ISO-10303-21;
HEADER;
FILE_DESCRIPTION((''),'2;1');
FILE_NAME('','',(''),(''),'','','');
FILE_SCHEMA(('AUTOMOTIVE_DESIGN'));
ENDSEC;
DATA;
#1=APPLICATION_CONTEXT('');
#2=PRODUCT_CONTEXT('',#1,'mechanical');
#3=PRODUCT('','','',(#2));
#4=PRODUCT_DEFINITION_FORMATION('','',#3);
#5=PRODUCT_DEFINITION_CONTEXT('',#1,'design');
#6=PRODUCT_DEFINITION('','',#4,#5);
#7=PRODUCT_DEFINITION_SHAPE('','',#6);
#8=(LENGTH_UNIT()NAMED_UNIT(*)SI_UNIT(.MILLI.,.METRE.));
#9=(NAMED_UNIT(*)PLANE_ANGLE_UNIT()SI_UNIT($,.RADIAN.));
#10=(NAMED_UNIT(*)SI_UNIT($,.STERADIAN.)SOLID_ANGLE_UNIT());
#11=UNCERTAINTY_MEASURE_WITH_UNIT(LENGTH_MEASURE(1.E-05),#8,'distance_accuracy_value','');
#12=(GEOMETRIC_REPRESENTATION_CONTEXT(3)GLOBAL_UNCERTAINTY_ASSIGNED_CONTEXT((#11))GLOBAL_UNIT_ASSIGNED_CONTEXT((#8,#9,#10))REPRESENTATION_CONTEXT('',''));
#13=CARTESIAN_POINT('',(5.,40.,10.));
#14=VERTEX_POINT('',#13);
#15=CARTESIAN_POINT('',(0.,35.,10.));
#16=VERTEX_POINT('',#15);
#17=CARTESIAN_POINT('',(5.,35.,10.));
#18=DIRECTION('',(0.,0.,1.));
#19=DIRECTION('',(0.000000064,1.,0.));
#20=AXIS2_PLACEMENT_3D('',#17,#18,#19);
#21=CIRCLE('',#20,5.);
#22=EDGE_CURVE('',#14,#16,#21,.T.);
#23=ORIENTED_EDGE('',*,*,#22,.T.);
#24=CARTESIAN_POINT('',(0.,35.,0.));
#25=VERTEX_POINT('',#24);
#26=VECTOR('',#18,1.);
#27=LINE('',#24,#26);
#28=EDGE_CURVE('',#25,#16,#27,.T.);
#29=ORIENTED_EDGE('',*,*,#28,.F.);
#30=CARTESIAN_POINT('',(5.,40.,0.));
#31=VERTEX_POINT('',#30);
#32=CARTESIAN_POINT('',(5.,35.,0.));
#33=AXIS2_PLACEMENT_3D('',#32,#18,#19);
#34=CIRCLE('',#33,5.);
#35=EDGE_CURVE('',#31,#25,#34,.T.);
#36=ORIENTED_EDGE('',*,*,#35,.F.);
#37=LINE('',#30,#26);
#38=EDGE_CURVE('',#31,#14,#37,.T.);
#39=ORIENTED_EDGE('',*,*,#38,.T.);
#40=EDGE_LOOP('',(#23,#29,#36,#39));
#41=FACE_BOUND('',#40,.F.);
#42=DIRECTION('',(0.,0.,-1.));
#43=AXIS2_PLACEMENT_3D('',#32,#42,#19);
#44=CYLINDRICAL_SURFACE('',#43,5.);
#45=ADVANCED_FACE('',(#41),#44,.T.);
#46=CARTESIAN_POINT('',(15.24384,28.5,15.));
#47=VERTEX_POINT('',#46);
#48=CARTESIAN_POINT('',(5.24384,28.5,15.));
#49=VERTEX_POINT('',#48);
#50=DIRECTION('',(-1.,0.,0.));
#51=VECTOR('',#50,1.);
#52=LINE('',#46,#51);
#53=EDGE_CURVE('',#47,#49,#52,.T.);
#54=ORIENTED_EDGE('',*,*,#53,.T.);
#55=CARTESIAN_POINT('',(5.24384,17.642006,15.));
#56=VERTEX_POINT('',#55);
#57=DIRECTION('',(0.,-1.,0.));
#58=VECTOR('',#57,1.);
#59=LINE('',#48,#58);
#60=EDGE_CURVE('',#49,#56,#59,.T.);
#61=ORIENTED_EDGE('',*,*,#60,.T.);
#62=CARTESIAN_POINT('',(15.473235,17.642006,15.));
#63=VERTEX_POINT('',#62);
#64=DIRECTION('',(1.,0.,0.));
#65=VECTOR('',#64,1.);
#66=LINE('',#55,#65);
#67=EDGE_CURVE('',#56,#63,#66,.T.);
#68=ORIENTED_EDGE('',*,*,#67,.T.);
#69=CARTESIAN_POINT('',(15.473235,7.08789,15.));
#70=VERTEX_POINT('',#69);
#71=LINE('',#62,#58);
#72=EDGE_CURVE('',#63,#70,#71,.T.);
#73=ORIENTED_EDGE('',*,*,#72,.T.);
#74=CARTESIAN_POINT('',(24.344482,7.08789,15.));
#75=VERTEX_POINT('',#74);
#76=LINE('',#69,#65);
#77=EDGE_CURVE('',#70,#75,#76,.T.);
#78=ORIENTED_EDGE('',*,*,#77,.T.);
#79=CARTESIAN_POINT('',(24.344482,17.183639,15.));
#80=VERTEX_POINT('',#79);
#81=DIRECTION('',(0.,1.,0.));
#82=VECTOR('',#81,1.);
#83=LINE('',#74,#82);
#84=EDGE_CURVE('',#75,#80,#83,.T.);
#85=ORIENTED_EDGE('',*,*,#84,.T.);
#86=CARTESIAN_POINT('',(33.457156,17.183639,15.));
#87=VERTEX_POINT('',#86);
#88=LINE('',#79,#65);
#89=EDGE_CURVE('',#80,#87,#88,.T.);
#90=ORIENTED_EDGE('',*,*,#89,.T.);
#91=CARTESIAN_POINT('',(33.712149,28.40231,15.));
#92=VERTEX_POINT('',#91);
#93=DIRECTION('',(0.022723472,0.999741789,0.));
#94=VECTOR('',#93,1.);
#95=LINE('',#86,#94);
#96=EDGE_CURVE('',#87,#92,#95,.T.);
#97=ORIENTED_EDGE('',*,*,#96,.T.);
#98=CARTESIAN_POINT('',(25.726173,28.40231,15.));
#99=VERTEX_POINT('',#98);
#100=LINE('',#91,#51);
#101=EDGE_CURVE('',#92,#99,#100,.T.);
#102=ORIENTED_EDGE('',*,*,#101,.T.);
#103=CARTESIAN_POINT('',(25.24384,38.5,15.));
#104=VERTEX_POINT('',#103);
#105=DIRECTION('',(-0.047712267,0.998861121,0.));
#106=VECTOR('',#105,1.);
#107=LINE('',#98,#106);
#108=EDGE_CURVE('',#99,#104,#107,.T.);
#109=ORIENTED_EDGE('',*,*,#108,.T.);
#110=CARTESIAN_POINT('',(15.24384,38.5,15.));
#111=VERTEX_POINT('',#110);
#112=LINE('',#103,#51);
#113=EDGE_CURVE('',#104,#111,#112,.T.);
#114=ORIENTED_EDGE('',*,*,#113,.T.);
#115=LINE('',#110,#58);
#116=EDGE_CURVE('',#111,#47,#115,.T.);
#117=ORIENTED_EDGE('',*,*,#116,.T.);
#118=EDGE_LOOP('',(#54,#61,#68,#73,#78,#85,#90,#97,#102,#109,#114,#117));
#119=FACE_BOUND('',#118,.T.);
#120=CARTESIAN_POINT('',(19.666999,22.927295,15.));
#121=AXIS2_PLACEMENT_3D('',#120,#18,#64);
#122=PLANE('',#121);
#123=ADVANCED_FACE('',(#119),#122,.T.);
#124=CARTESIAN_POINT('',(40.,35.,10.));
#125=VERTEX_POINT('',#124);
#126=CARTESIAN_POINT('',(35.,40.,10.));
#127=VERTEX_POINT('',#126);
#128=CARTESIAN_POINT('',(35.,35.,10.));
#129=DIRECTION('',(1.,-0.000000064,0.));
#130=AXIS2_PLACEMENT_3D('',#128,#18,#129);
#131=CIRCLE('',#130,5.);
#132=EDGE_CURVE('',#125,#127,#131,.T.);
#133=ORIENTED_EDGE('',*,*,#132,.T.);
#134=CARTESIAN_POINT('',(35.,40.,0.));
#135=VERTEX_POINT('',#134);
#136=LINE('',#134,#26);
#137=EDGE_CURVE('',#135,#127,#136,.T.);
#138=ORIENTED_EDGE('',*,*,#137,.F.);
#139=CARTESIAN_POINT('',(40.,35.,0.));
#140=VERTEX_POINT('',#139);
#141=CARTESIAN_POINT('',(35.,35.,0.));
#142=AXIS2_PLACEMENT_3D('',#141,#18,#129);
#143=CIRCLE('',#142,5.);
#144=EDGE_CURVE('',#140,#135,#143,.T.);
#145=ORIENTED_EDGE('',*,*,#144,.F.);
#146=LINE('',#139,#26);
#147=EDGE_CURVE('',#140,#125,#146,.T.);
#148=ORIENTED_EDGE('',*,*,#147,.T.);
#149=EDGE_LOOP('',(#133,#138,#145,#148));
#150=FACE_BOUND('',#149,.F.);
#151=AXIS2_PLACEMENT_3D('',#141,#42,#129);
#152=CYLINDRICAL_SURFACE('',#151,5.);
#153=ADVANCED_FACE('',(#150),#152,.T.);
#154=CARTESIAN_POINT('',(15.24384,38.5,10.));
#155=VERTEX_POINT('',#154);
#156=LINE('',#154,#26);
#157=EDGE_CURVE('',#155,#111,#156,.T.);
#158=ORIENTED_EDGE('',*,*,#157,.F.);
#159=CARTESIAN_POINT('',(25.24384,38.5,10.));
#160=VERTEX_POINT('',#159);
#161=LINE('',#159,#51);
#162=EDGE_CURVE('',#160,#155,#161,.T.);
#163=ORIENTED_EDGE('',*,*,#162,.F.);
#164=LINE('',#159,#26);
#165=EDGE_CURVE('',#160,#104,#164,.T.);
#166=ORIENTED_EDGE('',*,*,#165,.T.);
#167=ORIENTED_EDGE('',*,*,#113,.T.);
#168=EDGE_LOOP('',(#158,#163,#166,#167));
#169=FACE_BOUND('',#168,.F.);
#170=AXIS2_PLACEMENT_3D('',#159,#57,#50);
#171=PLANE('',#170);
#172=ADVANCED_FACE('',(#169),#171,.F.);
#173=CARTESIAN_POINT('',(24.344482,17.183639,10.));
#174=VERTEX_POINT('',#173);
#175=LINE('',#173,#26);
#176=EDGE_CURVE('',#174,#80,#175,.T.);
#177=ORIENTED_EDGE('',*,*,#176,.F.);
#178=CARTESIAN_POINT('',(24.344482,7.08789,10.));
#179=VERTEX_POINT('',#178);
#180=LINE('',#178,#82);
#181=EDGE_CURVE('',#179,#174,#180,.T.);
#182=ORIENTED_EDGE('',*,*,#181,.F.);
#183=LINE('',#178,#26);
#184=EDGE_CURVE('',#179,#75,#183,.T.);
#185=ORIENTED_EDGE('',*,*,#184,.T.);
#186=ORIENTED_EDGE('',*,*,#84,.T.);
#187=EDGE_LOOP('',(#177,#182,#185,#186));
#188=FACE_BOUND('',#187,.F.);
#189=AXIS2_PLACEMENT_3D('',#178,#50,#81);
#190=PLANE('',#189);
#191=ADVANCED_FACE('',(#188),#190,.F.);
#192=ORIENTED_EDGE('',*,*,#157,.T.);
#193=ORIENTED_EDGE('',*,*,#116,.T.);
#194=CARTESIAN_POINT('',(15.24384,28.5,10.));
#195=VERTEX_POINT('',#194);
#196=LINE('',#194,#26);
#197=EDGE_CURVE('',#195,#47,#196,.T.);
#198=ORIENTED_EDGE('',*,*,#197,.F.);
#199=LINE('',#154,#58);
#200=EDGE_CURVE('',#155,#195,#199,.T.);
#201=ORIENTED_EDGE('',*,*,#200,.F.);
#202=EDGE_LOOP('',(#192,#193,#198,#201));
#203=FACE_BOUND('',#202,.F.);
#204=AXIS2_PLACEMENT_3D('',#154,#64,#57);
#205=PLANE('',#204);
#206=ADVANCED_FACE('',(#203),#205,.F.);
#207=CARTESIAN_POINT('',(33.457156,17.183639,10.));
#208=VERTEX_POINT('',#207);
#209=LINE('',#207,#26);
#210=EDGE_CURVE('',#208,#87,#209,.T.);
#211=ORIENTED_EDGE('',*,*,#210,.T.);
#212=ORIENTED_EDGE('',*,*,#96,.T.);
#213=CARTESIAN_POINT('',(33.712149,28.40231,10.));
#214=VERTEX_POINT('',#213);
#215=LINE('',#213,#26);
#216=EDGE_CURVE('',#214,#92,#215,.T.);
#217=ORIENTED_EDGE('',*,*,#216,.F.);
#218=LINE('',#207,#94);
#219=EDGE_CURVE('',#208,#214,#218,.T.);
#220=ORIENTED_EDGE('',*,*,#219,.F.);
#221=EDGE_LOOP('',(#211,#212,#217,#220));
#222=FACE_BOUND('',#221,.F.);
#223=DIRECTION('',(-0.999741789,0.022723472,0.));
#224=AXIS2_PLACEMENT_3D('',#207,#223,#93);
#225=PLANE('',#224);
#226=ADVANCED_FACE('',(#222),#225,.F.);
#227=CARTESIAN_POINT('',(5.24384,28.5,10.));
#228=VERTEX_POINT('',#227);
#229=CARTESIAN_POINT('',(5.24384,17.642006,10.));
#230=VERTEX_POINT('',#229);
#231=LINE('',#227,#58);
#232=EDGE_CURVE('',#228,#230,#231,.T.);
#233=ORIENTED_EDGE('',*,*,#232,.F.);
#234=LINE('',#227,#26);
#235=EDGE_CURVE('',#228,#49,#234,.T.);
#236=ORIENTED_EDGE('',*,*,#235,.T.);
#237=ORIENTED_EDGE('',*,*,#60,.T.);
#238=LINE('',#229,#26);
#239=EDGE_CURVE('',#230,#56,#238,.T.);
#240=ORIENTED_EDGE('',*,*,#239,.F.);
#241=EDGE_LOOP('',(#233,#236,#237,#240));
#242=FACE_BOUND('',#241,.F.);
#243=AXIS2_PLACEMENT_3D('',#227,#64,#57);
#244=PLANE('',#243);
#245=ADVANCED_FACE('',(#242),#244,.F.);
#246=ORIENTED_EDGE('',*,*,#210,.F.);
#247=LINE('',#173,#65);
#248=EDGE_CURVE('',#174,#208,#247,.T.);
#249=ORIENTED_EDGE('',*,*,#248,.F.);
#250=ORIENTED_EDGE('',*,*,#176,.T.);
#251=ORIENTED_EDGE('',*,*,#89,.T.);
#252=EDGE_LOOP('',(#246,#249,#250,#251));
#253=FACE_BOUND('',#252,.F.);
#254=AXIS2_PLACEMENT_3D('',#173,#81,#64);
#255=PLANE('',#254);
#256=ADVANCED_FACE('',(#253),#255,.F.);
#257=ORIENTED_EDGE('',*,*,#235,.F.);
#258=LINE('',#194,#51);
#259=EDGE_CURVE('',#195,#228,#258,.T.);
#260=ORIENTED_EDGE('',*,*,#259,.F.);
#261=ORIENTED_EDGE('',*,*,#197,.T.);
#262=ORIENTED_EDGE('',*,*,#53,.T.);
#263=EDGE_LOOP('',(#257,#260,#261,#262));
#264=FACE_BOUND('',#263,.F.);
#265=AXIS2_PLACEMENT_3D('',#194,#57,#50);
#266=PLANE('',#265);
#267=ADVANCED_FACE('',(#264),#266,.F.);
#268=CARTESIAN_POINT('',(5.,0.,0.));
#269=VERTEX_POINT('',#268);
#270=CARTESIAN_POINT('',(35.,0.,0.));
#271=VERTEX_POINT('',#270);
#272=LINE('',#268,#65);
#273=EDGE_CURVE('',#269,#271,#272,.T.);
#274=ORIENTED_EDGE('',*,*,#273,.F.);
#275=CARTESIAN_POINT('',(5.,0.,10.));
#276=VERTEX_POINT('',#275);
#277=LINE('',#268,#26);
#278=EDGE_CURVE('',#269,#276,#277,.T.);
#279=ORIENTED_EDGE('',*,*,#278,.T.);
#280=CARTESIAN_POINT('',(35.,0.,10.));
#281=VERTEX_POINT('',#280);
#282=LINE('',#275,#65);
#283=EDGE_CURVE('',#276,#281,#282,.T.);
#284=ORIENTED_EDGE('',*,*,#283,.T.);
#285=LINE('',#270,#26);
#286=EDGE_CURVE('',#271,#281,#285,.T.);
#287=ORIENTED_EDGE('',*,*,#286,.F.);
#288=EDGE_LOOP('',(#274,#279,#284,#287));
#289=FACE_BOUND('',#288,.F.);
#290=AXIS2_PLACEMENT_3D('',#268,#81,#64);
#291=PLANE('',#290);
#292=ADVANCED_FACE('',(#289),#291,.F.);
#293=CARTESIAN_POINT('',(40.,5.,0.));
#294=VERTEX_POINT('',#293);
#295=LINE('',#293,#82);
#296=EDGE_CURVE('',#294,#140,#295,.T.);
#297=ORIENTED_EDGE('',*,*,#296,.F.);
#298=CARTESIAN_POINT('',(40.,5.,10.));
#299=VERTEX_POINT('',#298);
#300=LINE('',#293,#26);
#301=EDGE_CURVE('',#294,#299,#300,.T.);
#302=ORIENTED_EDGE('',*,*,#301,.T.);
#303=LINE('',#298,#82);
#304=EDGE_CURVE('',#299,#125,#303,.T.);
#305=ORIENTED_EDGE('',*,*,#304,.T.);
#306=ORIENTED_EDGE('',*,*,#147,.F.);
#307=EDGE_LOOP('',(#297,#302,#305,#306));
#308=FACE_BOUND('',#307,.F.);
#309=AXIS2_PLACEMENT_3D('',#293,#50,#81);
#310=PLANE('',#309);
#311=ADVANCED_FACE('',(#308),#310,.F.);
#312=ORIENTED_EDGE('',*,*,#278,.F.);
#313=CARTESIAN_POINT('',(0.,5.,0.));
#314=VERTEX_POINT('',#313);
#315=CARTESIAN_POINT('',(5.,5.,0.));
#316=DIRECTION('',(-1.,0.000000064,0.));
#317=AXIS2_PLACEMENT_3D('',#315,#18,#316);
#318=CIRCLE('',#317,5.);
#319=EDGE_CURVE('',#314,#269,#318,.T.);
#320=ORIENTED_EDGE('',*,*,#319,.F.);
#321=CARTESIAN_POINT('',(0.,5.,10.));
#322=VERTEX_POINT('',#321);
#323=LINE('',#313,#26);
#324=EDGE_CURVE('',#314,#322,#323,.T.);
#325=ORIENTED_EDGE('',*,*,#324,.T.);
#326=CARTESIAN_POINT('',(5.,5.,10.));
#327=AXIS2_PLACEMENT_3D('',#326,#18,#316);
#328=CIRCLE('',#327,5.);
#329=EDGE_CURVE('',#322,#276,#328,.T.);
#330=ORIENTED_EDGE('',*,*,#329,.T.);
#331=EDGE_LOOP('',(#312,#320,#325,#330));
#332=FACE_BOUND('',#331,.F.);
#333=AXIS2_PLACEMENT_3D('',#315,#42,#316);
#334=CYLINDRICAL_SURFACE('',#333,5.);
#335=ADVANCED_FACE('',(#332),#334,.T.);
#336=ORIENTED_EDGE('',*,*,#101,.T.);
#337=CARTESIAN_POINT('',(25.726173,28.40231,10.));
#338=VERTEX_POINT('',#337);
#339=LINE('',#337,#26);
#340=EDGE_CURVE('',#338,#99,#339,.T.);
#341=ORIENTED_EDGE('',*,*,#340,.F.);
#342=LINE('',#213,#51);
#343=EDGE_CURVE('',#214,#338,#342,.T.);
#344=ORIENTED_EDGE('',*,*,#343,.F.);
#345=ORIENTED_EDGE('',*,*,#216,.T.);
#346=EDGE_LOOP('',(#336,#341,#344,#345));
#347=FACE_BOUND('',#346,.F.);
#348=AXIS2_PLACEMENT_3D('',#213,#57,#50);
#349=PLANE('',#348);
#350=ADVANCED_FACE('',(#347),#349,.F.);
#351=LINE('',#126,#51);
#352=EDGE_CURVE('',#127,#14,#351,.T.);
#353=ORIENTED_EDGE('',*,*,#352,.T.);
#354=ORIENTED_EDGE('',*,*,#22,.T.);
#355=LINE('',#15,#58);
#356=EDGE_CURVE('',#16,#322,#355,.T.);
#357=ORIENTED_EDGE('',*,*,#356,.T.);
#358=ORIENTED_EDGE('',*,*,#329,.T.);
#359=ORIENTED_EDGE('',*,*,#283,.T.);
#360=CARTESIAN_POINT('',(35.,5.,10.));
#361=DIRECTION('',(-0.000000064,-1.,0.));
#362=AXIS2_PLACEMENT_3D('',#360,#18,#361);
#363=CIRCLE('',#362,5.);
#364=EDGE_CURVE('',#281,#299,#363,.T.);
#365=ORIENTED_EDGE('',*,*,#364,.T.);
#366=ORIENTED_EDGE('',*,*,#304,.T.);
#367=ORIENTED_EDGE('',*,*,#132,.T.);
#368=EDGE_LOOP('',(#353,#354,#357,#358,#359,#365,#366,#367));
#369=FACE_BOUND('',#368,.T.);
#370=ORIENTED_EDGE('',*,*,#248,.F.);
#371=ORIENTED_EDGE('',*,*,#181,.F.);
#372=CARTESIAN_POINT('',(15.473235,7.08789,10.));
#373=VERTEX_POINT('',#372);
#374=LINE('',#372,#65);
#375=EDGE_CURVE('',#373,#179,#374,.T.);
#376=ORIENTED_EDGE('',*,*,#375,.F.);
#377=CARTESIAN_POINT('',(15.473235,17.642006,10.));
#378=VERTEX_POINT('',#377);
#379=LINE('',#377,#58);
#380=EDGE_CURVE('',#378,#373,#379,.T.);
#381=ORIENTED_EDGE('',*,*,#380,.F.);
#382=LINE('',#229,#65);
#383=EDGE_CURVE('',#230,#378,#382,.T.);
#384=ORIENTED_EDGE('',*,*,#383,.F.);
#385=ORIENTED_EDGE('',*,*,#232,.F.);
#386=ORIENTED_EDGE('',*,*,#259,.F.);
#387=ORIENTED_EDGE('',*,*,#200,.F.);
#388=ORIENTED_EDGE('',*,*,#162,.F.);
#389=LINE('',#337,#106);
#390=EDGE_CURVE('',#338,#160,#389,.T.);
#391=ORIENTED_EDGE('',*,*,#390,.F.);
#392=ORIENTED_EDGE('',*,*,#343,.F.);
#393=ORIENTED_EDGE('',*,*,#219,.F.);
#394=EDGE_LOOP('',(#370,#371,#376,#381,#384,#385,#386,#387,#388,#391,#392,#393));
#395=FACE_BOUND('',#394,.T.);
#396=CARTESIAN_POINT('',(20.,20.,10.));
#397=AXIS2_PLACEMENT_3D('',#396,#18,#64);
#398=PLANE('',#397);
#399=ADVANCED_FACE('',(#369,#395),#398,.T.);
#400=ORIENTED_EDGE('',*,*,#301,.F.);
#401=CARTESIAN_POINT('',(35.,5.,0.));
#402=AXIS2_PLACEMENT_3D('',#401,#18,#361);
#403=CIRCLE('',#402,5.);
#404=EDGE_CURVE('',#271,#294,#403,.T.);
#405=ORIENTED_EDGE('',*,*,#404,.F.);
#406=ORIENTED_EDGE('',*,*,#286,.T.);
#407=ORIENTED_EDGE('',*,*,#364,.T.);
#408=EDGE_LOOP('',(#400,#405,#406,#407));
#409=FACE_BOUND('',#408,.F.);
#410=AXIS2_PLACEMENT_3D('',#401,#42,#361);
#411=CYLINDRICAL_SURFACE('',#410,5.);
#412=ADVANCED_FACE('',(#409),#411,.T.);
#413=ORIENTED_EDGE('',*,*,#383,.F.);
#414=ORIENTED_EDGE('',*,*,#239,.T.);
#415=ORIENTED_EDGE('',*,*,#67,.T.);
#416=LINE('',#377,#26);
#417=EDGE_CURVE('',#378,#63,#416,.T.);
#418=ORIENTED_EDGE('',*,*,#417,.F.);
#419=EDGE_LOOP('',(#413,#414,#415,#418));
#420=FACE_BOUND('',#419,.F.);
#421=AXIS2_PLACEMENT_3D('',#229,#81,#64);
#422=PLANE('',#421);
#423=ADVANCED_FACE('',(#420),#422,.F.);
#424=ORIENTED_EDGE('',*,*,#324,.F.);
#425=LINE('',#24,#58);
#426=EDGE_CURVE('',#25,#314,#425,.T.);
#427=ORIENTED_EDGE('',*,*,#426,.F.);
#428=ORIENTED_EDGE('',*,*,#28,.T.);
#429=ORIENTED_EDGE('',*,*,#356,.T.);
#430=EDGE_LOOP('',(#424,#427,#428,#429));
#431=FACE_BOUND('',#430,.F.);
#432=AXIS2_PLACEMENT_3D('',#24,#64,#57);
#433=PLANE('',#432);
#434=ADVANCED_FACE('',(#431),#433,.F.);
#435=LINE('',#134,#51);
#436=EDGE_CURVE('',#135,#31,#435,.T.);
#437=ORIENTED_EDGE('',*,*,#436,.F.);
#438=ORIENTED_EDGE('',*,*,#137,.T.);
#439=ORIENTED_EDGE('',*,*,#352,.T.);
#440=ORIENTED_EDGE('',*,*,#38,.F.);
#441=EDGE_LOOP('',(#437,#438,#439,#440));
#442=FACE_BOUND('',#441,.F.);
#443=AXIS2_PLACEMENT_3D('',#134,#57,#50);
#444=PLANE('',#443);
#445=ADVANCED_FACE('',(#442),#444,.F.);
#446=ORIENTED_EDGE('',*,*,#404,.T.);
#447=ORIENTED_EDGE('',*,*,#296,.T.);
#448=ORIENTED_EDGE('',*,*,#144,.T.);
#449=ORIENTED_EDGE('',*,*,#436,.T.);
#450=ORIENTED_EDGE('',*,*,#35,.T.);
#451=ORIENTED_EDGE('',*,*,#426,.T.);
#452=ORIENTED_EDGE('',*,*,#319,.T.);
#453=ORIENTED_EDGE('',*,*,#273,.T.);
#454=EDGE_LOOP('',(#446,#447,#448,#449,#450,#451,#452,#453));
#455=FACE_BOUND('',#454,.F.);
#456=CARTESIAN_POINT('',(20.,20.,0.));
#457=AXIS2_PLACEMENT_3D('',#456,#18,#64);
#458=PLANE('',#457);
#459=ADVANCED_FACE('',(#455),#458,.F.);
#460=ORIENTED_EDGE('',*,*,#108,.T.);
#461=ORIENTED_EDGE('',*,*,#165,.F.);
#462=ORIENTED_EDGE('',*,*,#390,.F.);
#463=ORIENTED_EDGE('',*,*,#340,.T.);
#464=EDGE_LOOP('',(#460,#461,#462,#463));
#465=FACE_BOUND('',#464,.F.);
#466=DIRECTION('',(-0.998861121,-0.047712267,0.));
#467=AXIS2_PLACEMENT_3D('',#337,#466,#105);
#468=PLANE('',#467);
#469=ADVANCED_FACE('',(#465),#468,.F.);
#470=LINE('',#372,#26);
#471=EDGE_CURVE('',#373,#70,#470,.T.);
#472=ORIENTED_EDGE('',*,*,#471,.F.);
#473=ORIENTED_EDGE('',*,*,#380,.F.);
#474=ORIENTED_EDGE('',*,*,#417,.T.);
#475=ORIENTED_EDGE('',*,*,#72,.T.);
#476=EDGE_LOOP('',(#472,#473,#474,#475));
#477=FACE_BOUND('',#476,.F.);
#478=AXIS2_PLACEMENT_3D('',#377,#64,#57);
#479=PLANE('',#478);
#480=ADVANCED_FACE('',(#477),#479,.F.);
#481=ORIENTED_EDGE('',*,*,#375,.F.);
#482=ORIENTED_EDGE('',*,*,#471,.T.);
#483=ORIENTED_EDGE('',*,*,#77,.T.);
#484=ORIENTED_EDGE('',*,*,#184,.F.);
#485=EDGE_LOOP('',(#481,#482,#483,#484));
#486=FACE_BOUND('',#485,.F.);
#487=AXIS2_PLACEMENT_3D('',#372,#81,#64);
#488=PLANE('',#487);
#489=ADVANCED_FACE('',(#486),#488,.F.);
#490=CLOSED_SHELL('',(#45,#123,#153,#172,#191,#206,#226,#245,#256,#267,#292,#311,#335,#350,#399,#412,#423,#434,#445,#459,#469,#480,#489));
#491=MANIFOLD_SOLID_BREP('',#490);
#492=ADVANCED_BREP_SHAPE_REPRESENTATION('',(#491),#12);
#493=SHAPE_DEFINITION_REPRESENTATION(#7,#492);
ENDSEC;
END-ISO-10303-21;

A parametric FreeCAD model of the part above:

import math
import FreeCAD as App
import Part
import Sketcher

V = App.Vector


def add_polygon(sketch, points):
    """Adds a closed chain of lines whose ends are joined by coincident constraints."""
    first, n = sketch.GeometryCount, len(points)
    for a, b in zip(points, points[1:] + points[:1]):
        sketch.addGeometry(Part.LineSegment(App.Vector(*a, 0), App.Vector(*b, 0)), False)
    for i in range(n):
        sketch.addConstraint(Sketcher.Constraint("Coincident", first + i, 2, first + (i + 1) % n, 1))

doc = App.newDocument("Part")
body = doc.addObject("PartDesign::Body", "Body")

# Sketch on XY plane
sketch1 = body.newObject("Sketcher::SketchObject", "Sketch")
sketch1.AttachmentSupport = (doc.getObject("XY_Plane"), [""])
sketch1.MapMode = "FlatFace"
sketch1.addGeometry([
    Part.ArcOfCircle(Part.Circle(V(5, 5, 0), V(0, 0, 1), 5), math.radians(179.999996), math.radians(270.000004)),  # 0
    Part.LineSegment(V(5, 0, 0), V(35, 0, 0)),  # 1
    Part.ArcOfCircle(Part.Circle(V(35, 5, 0), V(0, 0, 1), 5), math.radians(-90.000004), math.radians(0.000004)),  # 2
    Part.LineSegment(V(40, 5, 0), V(40, 35, 0)),  # 3
    Part.ArcOfCircle(Part.Circle(V(35, 35, 0), V(0, 0, 1), 5), math.radians(-0.000004), math.radians(90.000004)),  # 4
    Part.LineSegment(V(35, 40, 0), V(5, 40, 0)),  # 5
    Part.ArcOfCircle(Part.Circle(V(5, 35, 0), V(0, 0, 1), 5), math.radians(89.999996), math.radians(180.000004)),  # 6
    Part.LineSegment(V(0, 35, 0), V(0, 5, 0)),  # 7
], False)
sketch1.addConstraint([
    Sketcher.Constraint("Tangent", 0, 2, 1, 1),
    Sketcher.Constraint("Tangent", 1, 2, 2, 1),
    Sketcher.Constraint("Tangent", 2, 2, 3, 1),
    Sketcher.Constraint("Tangent", 3, 2, 4, 1),
    Sketcher.Constraint("Tangent", 4, 2, 5, 1),
    Sketcher.Constraint("Tangent", 5, 2, 6, 1),
    Sketcher.Constraint("Tangent", 6, 2, 7, 1),
    Sketcher.Constraint("Tangent", 7, 2, 0, 1),
    Sketcher.Constraint("Horizontal", 1),
    Sketcher.Constraint("Vertical", 3),
    Sketcher.Constraint("Horizontal", 5),
    Sketcher.Constraint("Vertical", 7),
    Sketcher.Constraint("Equal", 0, 2),
    Sketcher.Constraint("Equal", 2, 4),
    Sketcher.Constraint("Equal", 4, 6),
    Sketcher.Constraint("PointOnObject", 0, 2, -1),
    Sketcher.Constraint("PointOnObject", 6, 2, -2),
    Sketcher.Constraint("Equal", 5, 3),
    Sketcher.Constraint("Radius", 0, 5.0),
    Sketcher.Constraint("DistanceX", 1, 1, 1, 2, 30.0),
])
pad1 = body.newObject("PartDesign::Pad", "Pad")
pad1.Profile = sketch1
pad1.Length = 10

# Sketch on XY plane
sketch2 = body.newObject("Sketcher::SketchObject", "Sketch001")
sketch2.AttachmentSupport = (doc.getObject("XY_Plane"), [""])
sketch2.MapMode = "FlatFace"
sketch2.AttachmentOffset = App.Placement(V(0, 0, 10), App.Rotation())
add_polygon(sketch2, [(25.726173, 28.40231), (25.24384, 38.5), (15.24384, 38.5), (15.24384, 28.5), (5.24384, 28.5), (5.24384, 17.642006), (15.473235, 17.642006), (15.473235, 7.08789), (24.344482, 7.08789), (24.344482, 17.183639), (33.457156, 17.183639), (33.712149, 28.40231)])  # lines 0-11
sketch2.addConstraint([
    Sketcher.Constraint("Horizontal", 1),
    Sketcher.Constraint("Vertical", 2),
    Sketcher.Constraint("Horizontal", 3),
    Sketcher.Constraint("Vertical", 4),
    Sketcher.Constraint("Horizontal", 5),
    Sketcher.Constraint("Vertical", 6),
    Sketcher.Constraint("Horizontal", 7),
    Sketcher.Constraint("Vertical", 8),
    Sketcher.Constraint("Horizontal", 9),
    Sketcher.Constraint("Horizontal", 11),
    Sketcher.Constraint("Equal", 1, 3),
    Sketcher.Constraint("Equal", 3, 2),
    Sketcher.Constraint("DistanceX", 1, 2, 1, 1, 10.0),
    Sketcher.Constraint("DistanceY", -1, 1, 0, 2, 38.5),
    Sketcher.Constraint("DistanceY", 8, 1, 8, 2, 10.095749),
    Sketcher.Constraint("Distance", 10, 11.221569),
    Sketcher.Constraint("DistanceX", 5, 1, 5, 2, 10.229395),
    Sketcher.Constraint("DistanceX", 7, 1, 7, 2, 8.871247),
    Sketcher.Constraint("DistanceX", 9, 1, 9, 2, 9.112674),
    Sketcher.Constraint("DistanceX", 11, 2, 11, 1, 7.985976),
    Sketcher.Constraint("DistanceY", 4, 2, 4, 1, 10.857994),
    Sketcher.Constraint("DistanceY", 6, 2, 6, 1, 10.554116),
    Sketcher.Constraint("DistanceX", -1, 1, 0, 2, 25.24384),
    Sketcher.Constraint("DistanceX", -1, 1, 10, 2, 33.712149),
])
pad2 = body.newObject("PartDesign::Pad", "Pad001")
pad2.Profile = sketch2
pad2.Length = 5

doc.recompute()
